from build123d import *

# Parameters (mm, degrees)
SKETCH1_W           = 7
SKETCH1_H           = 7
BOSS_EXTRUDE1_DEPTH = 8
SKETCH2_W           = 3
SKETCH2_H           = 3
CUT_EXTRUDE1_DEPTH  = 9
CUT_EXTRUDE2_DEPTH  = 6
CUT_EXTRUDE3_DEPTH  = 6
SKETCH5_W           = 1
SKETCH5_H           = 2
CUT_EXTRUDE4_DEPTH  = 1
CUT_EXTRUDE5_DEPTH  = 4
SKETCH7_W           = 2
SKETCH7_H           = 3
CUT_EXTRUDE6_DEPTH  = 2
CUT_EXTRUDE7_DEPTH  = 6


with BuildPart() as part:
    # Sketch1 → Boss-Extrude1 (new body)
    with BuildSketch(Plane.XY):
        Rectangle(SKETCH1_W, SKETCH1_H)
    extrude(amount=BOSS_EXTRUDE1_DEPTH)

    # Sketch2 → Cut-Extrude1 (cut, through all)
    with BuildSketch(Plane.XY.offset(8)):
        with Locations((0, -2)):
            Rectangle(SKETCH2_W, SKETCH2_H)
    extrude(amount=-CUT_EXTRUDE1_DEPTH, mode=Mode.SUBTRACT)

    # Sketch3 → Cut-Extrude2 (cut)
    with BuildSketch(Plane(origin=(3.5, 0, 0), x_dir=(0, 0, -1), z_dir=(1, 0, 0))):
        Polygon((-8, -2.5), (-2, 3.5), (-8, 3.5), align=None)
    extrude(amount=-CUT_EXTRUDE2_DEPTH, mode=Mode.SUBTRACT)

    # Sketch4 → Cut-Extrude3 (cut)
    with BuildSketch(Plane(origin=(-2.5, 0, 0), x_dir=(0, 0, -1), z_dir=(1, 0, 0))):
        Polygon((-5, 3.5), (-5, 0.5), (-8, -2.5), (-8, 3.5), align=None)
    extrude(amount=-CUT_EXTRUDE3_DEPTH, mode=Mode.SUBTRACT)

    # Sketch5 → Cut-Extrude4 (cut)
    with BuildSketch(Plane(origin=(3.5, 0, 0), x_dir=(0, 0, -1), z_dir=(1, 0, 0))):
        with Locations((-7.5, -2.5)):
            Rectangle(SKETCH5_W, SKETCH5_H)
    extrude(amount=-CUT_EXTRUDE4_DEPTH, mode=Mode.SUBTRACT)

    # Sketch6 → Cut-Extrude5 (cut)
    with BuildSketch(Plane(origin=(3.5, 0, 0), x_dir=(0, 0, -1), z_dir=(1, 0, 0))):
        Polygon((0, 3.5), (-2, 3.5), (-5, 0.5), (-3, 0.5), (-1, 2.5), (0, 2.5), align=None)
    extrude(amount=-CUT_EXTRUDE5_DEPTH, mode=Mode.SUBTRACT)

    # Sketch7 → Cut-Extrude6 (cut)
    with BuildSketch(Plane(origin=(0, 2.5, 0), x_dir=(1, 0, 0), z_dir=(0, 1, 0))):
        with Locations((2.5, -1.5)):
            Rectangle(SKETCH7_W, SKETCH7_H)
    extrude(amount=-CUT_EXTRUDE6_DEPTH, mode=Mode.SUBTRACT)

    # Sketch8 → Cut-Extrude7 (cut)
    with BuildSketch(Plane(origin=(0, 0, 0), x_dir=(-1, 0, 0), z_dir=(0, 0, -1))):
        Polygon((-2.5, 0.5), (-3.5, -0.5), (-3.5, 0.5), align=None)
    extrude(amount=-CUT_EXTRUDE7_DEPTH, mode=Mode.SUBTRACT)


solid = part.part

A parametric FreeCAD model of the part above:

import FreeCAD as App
import Part
import Sketcher
Q = App.Units.Quantity

doc = App.newDocument("Part")
params = doc.addObject("Spreadsheet::Sheet", "Params")
for row, (alias, value) in enumerate([
    ("sketch1_width", "7 mm"),
    ("pad1_length", "8 mm"),
    ("sketch2_width", "3 mm"),
    ("sketch3_width", "6 mm"),
    ("pocket2_length", "6 mm"),
    ("sketch4_width", "3 mm"),
    ("sketch4_width2", "6 mm"),
    ("pocket3_length", "6 mm"),
    ("sketch5_width", "2 mm"),
    ("sketch5_height", "1 mm"),
    ("pocket4_length", "1 mm"),
    ("sketch6_width", "1 mm"),
    ("sketch6_height", "2 mm"),
    ("pocket5_length", "4 mm"),
    ("sketch7_width", "2 mm"),
    ("sketch7_height", "3 mm"),
    ("pocket6_length", "2 mm"),
    ("sketch8_width", "1 mm"),
    ("pocket7_length", "6 mm"),
], start=1):
    params.set(f"A{row}", alias)
    params.set(f"B{row}", "=" + value)
    params.setAlias(f"B{row}", alias)

body = doc.addObject("PartDesign::Body", "Body")

# Sketch on XY plane
sketch1 = body.newObject("Sketcher::SketchObject", "Sketch")
sketch1.AttachmentSupport = (doc.getObject("XY_Plane"), [""])
sketch1.MapMode = "FlatFace"
sketch1.addGeometry(Part.LineSegment(App.Vector(-3.5, 3.5, 0), App.Vector(-3.5, -3.5, 0)), False)
sketch1.addGeometry(Part.LineSegment(App.Vector(-3.5, -3.5, 0), App.Vector(3.5, -3.5, 0)), False)
sketch1.addGeometry(Part.LineSegment(App.Vector(3.5, -3.5, 0), App.Vector(3.5, 3.5, 0)), False)
sketch1.addGeometry(Part.LineSegment(App.Vector(3.5, 3.5, 0), App.Vector(-3.5, 3.5, 0)), False)
sketch1.addConstraint(Sketcher.Constraint("Coincident", 0, 2, 1, 1))
sketch1.addConstraint(Sketcher.Constraint("Coincident", 1, 2, 2, 1))
sketch1.addConstraint(Sketcher.Constraint("Coincident", 2, 2, 3, 1))
sketch1.addConstraint(Sketcher.Constraint("Coincident", 3, 2, 0, 1))
sketch1.addConstraint(Sketcher.Constraint("Vertical", 0))
sketch1.addConstraint(Sketcher.Constraint("Horizontal", 1))
sketch1.addConstraint(Sketcher.Constraint("Vertical", 2))
sketch1.addConstraint(Sketcher.Constraint("Horizontal", 3))
sketch1.addConstraint(Sketcher.Constraint("Symmetric", 0, 2, 2, 2, -1, 1))
sketch1.addConstraint(Sketcher.Constraint("Equal", 3, 0))
sketch1.addConstraint(Sketcher.Constraint("DistanceX", 1, 1, 1, 2, Q("7 mm")))
sketch1.setExpression("Constraints[10]", "Params.sketch1_width")
pad1 = body.newObject("PartDesign::Pad", "Pad")
pad1.Profile = sketch1
pad1.setExpression("Length", "Params.pad1_length")

# Sketch on XY plane
sketch2 = body.newObject("Sketcher::SketchObject", "Sketch001")
sketch2.AttachmentSupport = (doc.getObject("XY_Plane"), [""])
sketch2.MapMode = "FlatFace"
sketch2.AttachmentOffset = App.Placement(App.Vector(0, 0, 8), App.Rotation())
sketch2.addGeometry(Part.LineSegment(App.Vector(-1.5, -0.5, 0), App.Vector(-1.5, -3.5, 0)), False)
sketch2.addGeometry(Part.LineSegment(App.Vector(-1.5, -3.5, 0), App.Vector(1.5, -3.5, 0)), False)
sketch2.addGeometry(Part.LineSegment(App.Vector(1.5, -3.5, 0), App.Vector(1.5, -0.5, 0)), False)
sketch2.addGeometry(Part.LineSegment(App.Vector(1.5, -0.5, 0), App.Vector(-1.5, -0.5, 0)), False)
sketch2.addConstraint(Sketcher.Constraint("Coincident", 0, 2, 1, 1))
sketch2.addConstraint(Sketcher.Constraint("Coincident", 1, 2, 2, 1))
sketch2.addConstraint(Sketcher.Constraint("Coincident", 2, 2, 3, 1))
sketch2.addConstraint(Sketcher.Constraint("Coincident", 3, 2, 0, 1))
sketch2.addConstraint(Sketcher.Constraint("Vertical", 0))
sketch2.addConstraint(Sketcher.Constraint("Horizontal", 1))
sketch2.addConstraint(Sketcher.Constraint("Vertical", 2))
sketch2.addConstraint(Sketcher.Constraint("Horizontal", 3))
sketch2.addConstraint(Sketcher.Constraint("Equal", 3, 0))
sketch2.addConstraint(Sketcher.Constraint("DistanceX", 1, 1, 1, 2, Q("3 mm")))
sketch2.addConstraint(Sketcher.Constraint("DistanceX", 0, 2, -1, 1, Q("1.5 mm")))
sketch2.addConstraint(Sketcher.Constraint("DistanceY", 0, 2, -1, 1, Q("3.5 mm")))
sketch2.setExpression("Constraints[9]", "Params.sketch2_width")
pocket1 = body.newObject("PartDesign::Pocket", "Pocket")
pocket1.Profile = sketch2
pocket1.Type = "ThroughAll"

# Sketch on YZ plane
sketch3 = body.newObject("Sketcher::SketchObject", "Sketch002")
sketch3.AttachmentSupport = (doc.getObject("YZ_Plane"), [""])
sketch3.MapMode = "FlatFace"
sketch3.AttachmentOffset = App.Placement(App.Vector(0, 0, 3.5), App.Rotation())
sketch3.addGeometry(Part.LineSegment(App.Vector(-2.5, 8, 0), App.Vector(3.5, 2, 0)), False)
sketch3.addGeometry(Part.LineSegment(App.Vector(3.5, 2, 0), App.Vector(3.5, 8, 0)), False)
sketch3.addGeometry(Part.LineSegment(App.Vector(3.5, 8, 0), App.Vector(-2.5, 8, 0)), False)
sketch3.addConstraint(Sketcher.Constraint("Coincident", 0, 2, 1, 1))
sketch3.addConstraint(Sketcher.Constraint("Coincident", 1, 2, 2, 1))
sketch3.addConstraint(Sketcher.Constraint("Coincident", 2, 2, 0, 1))
sketch3.addConstraint(Sketcher.Constraint("Vertical", 1))
sketch3.addConstraint(Sketcher.Constraint("Horizontal", 2))
sketch3.addConstraint(Sketcher.Constraint("Equal", 2, 1))
sketch3.addConstraint(Sketcher.Constraint("DistanceX", 2, 2, 2, 1, Q("6 mm")))
sketch3.addConstraint(Sketcher.Constraint("DistanceY", -1, 1, 0, 2, Q("2 mm")))
sketch3.addConstraint(Sketcher.Constraint("DistanceX", -1, 1, 0, 2, Q("3.5 mm")))
sketch3.setExpression("Constraints[6]", "Params.sketch3_width")
pocket2 = body.newObject("PartDesign::Pocket", "Pocket001")
pocket2.Profile = sketch3
pocket2.setExpression("Length", "Params.pocket2_length")

# Sketch on YZ plane
sketch4 = body.newObject("Sketcher::SketchObject", "Sketch003")
sketch4.AttachmentSupport = (doc.getObject("YZ_Plane"), [""])
sketch4.MapMode = "FlatFace"
sketch4.AttachmentOffset = App.Placement(App.Vector(0, 0, -2.5), App.Rotation())
sketch4.addGeometry(Part.LineSegment(App.Vector(0.5, 5, 0), App.Vector(3.5, 5, 0)), False)
sketch4.addGeometry(Part.LineSegment(App.Vector(3.5, 5, 0), App.Vector(3.5, 8, 0)), False)
sketch4.addGeometry(Part.LineSegment(App.Vector(3.5, 8, 0), App.Vector(-2.5, 8, 0)), False)
sketch4.addGeometry(Part.LineSegment(App.Vector(-2.5, 8, 0), App.Vector(0.5, 5, 0)), False)
sketch4.addConstraint(Sketcher.Constraint("Coincident", 0, 2, 1, 1))
sketch4.addConstraint(Sketcher.Constraint("Coincident", 1, 2, 2, 1))
sketch4.addConstraint(Sketcher.Constraint("Coincident", 2, 2, 3, 1))
sketch4.addConstraint(Sketcher.Constraint("Coincident", 3, 2, 0, 1))
sketch4.addConstraint(Sketcher.Constraint("Horizontal", 0))
sketch4.addConstraint(Sketcher.Constraint("Vertical", 1))
sketch4.addConstraint(Sketcher.Constraint("Horizontal", 2))
sketch4.addConstraint(Sketcher.Constraint("Equal", 0, 1))
sketch4.addConstraint(Sketcher.Constraint("DistanceX", 0, 1, 0, 2, Q("3 mm")))
sketch4.addConstraint(Sketcher.Constraint("DistanceX", 2, 2, 2, 1, Q("6 mm")))
sketch4.addConstraint(Sketcher.Constraint("DistanceY", -1, 1, 0, 2, Q("5 mm")))
sketch4.addConstraint(Sketcher.Constraint("DistanceX", -1, 1, 0, 2, Q("3.5 mm")))
sketch4.setExpression("Constraints[8]", "Params.sketch4_width")
sketch4.setExpression("Constraints[9]", "Params.sketch4_width2")
pocket3 = body.newObject("PartDesign::Pocket", "Pocket002")
pocket3.Profile = sketch4
pocket3.setExpression("Length", "Params.pocket3_length")

# Sketch on YZ plane
sketch5 = body.newObject("Sketcher::SketchObject", "Sketch004")
sketch5.AttachmentSupport = (doc.getObject("YZ_Plane"), [""])
sketch5.MapMode = "FlatFace"
sketch5.AttachmentOffset = App.Placement(App.Vector(0, 0, 3.5), App.Rotation())
sketch5.addGeometry(Part.LineSegment(App.Vector(-1.5, 8, 0), App.Vector(-3.5, 8, 0)), False)
sketch5.addGeometry(Part.LineSegment(App.Vector(-3.5, 8, 0), App.Vector(-3.5, 7, 0)), False)
sketch5.addGeometry(Part.LineSegment(App.Vector(-3.5, 7, 0), App.Vector(-1.5, 7, 0)), False)
sketch5.addGeometry(Part.LineSegment(App.Vector(-1.5, 7, 0), App.Vector(-1.5, 8, 0)), False)
sketch5.addConstraint(Sketcher.Constraint("Coincident", 0, 2, 1, 1))
sketch5.addConstraint(Sketcher.Constraint("Coincident", 1, 2, 2, 1))
sketch5.addConstraint(Sketcher.Constraint("Coincident", 2, 2, 3, 1))
sketch5.addConstraint(Sketcher.Constraint("Coincident", 3, 2, 0, 1))
sketch5.addConstraint(Sketcher.Constraint("Horizontal", 0))
sketch5.addConstraint(Sketcher.Constraint("Vertical", 1))
sketch5.addConstraint(Sketcher.Constraint("Horizontal", 2))
sketch5.addConstraint(Sketcher.Constraint("Vertical", 3))
sketch5.addConstraint(Sketcher.Constraint("DistanceX", 0, 2, 0, 1, Q("2 mm")))
sketch5.addConstraint(Sketcher.Constraint("DistanceY", 1, 2, 1, 1, Q("1 mm")))
sketch5.addConstraint(Sketcher.Constraint("DistanceY", -1, 1, 0, 2, Q("8 mm")))
sketch5.addConstraint(Sketcher.Constraint("DistanceX", 0, 2, -1, 1, Q("3.5 mm")))
sketch5.setExpression("Constraints[8]", "Params.sketch5_width")
sketch5.setExpression("Constraints[9]", "Params.sketch5_height")
pocket4 = body.newObject("PartDesign::Pocket", "Pocket003")
pocket4.Profile = sketch5
pocket4.setExpression("Length", "Params.pocket4_length")

# Sketch on YZ plane
sketch6 = body.newObject("Sketcher::SketchObject", "Sketch005")
sketch6.AttachmentSupport = (doc.getObject("YZ_Plane"), [""])
sketch6.MapMode = "FlatFace"
sketch6.AttachmentOffset = App.Placement(App.Vector(0, 0, 3.5), App.Rotation())
sketch6.addGeometry(Part.LineSegment(App.Vector(3.5, 0, 0), App.Vector(3.5, 2, 0)), False)
sketch6.addGeometry(Part.LineSegment(App.Vector(3.5, 2, 0), App.Vector(0.5, 5, 0)), False)
sketch6.addGeometry(Part.LineSegment(App.Vector(0.5, 5, 0), App.Vector(0.5, 3, 0)), False)
sketch6.addGeometry(Part.LineSegment(App.Vector(0.5, 3, 0), App.Vector(2.5, 1, 0)), False)
sketch6.addGeometry(Part.LineSegment(App.Vector(2.5, 1, 0), App.Vector(2.5, 0, 0)), False)
sketch6.addGeometry(Part.LineSegment(App.Vector(2.5, 0, 0), App.Vector(3.5, 0, 0)), False)
sketch6.addConstraint(Sketcher.Constraint("Coincident", 0, 2, 1, 1))
sketch6.addConstraint(Sketcher.Constraint("Coincident", 1, 2, 2, 1))
sketch6.addConstraint(Sketcher.Constraint("Coincident", 2, 2, 3, 1))
sketch6.addConstraint(Sketcher.Constraint("Coincident", 3, 2, 4, 1))
sketch6.addConstraint(Sketcher.Constraint("Coincident", 4, 2, 5, 1))
sketch6.addConstraint(Sketcher.Constraint("Coincident", 5, 2, 0, 1))
sketch6.addConstraint(Sketcher.Constraint("Vertical", 0))
sketch6.addConstraint(Sketcher.Constraint("Vertical", 2))
sketch6.addConstraint(Sketcher.Constraint("Vertical", 4))
sketch6.addConstraint(Sketcher.Constraint("Horizontal", 5))
sketch6.addConstraint(Sketcher.Constraint("PointOnObject", 4, 2, -1))
sketch6.addConstraint(Sketcher.Constraint("Parallel", 1, 3))
sketch6.addConstraint(Sketcher.Constraint("Equal", 0, 2))
sketch6.addConstraint(Sketcher.Constraint("Equal", 5, 4))
sketch6.addConstraint(Sketcher.Constraint("DistanceX", 5, 1, 5, 2, Q("1 mm")))
sketch6.addConstraint(Sketcher.Constraint("DistanceY", 0, 1, 0, 2, Q("2 mm")))
sketch6.addConstraint(Sketcher.Constraint("DistanceY", -1, 1, 1, 2, Q("5 mm")))
sketch6.addConstraint(Sketcher.Constraint("DistanceX", -1, 1, 0, 2, Q("3.5 mm")))
sketch6.setExpression("Constraints[14]", "Params.sketch6_width")
sketch6.setExpression("Constraints[15]", "Params.sketch6_height")
pocket5 = body.newObject("PartDesign::Pocket", "Pocket004")
pocket5.Profile = sketch6
pocket5.setExpression("Length", "Params.pocket5_length")

# Sketch on XZ plane
sketch7 = body.newObject("Sketcher::SketchObject", "Sketch006")
sketch7.AttachmentSupport = (doc.getObject("XZ_Plane"), [""])
sketch7.MapMode = "FlatFace"
sketch7.AttachmentOffset = App.Placement(App.Vector(0, 0, -2.5), App.Rotation())
sketch7.addGeometry(Part.LineSegment(App.Vector(1.5, 0, 0), App.Vector(1.5, 3, 0)), False)
sketch7.addGeometry(Part.LineSegment(App.Vector(1.5, 3, 0), App.Vector(3.5, 3, 0)), False)
sketch7.addGeometry(Part.LineSegment(App.Vector(3.5, 3, 0), App.Vector(3.5, 0, 0)), False)
sketch7.addGeometry(Part.LineSegment(App.Vector(3.5, 0, 0), App.Vector(1.5, 0, 0)), False)
sketch7.addConstraint(Sketcher.Constraint("Coincident", 0, 2, 1, 1))
sketch7.addConstraint(Sketcher.Constraint("Coincident", 1, 2, 2, 1))
sketch7.addConstraint(Sketcher.Constraint("Coincident", 2, 2, 3, 1))
sketch7.addConstraint(Sketcher.Constraint("Coincident", 3, 2, 0, 1))
sketch7.addConstraint(Sketcher.Constraint("Vertical", 0))
sketch7.addConstraint(Sketcher.Constraint("Horizontal", 1))
sketch7.addConstraint(Sketcher.Constraint("Vertical", 2))
sketch7.addConstraint(Sketcher.Constraint("Horizontal", 3))
sketch7.addConstraint(Sketcher.Constraint("PointOnObject", 2, 2, -1))
sketch7.addConstraint(Sketcher.Constraint("DistanceX", 1, 1, 1, 2, Q("2 mm")))
sketch7.addConstraint(Sketcher.Constraint("DistanceY", 0, 1, 0, 2, Q("3 mm")))
sketch7.addConstraint(Sketcher.Constraint("DistanceX", -1, 1, 0, 2, Q("1.5 mm")))
sketch7.setExpression("Constraints[9]", "Params.sketch7_width")
sketch7.setExpression("Constraints[10]", "Params.sketch7_height")
pocket6 = body.newObject("PartDesign::Pocket", "Pocket005")
pocket6.Profile = sketch7
pocket6.setExpression("Length", "Params.pocket6_length")
pocket6.Reversed = True

# Sketch on XY plane
sketch8 = body.newObject("Sketcher::SketchObject", "Sketch007")
sketch8.AttachmentSupport = (doc.getObject("XY_Plane"), [""])
sketch8.MapMode = "FlatFace"
sketch8.addGeometry(Part.LineSegment(App.Vector(3.5, -0.5, 0), App.Vector(2.5, 0.5, 0)), False)
sketch8.addGeometry(Part.LineSegment(App.Vector(2.5, 0.5, 0), App.Vector(3.5, 0.5, 0)), False)
sketch8.addGeometry(Part.LineSegment(App.Vector(3.5, 0.5, 0), App.Vector(3.5, -0.5, 0)), False)
sketch8.addConstraint(Sketcher.Constraint("Coincident", 0, 2, 1, 1))
sketch8.addConstraint(Sketcher.Constraint("Coincident", 1, 2, 2, 1))
sketch8.addConstraint(Sketcher.Constraint("Coincident", 2, 2, 0, 1))
sketch8.addConstraint(Sketcher.Constraint("Horizontal", 1))
sketch8.addConstraint(Sketcher.Constraint("Vertical", 2))
sketch8.addConstraint(Sketcher.Constraint("Equal", 1, 2))
sketch8.addConstraint(Sketcher.Constraint("DistanceX", 1, 1, 1, 2, Q("1 mm")))
sketch8.addConstraint(Sketcher.Constraint("DistanceX", -1, 1, 0, 2, Q("2.5 mm")))
sketch8.addConstraint(Sketcher.Constraint("DistanceY", -1, 1, 0, 2, Q("0.5 mm")))
sketch8.setExpression("Constraints[6]", "Params.sketch8_width")
pocket7 = body.newObject("PartDesign::Pocket", "Pocket006")
pocket7.Profile = sketch8
pocket7.setExpression("Length", "Params.pocket7_length")
pocket7.Reversed = True

doc.recompute()
